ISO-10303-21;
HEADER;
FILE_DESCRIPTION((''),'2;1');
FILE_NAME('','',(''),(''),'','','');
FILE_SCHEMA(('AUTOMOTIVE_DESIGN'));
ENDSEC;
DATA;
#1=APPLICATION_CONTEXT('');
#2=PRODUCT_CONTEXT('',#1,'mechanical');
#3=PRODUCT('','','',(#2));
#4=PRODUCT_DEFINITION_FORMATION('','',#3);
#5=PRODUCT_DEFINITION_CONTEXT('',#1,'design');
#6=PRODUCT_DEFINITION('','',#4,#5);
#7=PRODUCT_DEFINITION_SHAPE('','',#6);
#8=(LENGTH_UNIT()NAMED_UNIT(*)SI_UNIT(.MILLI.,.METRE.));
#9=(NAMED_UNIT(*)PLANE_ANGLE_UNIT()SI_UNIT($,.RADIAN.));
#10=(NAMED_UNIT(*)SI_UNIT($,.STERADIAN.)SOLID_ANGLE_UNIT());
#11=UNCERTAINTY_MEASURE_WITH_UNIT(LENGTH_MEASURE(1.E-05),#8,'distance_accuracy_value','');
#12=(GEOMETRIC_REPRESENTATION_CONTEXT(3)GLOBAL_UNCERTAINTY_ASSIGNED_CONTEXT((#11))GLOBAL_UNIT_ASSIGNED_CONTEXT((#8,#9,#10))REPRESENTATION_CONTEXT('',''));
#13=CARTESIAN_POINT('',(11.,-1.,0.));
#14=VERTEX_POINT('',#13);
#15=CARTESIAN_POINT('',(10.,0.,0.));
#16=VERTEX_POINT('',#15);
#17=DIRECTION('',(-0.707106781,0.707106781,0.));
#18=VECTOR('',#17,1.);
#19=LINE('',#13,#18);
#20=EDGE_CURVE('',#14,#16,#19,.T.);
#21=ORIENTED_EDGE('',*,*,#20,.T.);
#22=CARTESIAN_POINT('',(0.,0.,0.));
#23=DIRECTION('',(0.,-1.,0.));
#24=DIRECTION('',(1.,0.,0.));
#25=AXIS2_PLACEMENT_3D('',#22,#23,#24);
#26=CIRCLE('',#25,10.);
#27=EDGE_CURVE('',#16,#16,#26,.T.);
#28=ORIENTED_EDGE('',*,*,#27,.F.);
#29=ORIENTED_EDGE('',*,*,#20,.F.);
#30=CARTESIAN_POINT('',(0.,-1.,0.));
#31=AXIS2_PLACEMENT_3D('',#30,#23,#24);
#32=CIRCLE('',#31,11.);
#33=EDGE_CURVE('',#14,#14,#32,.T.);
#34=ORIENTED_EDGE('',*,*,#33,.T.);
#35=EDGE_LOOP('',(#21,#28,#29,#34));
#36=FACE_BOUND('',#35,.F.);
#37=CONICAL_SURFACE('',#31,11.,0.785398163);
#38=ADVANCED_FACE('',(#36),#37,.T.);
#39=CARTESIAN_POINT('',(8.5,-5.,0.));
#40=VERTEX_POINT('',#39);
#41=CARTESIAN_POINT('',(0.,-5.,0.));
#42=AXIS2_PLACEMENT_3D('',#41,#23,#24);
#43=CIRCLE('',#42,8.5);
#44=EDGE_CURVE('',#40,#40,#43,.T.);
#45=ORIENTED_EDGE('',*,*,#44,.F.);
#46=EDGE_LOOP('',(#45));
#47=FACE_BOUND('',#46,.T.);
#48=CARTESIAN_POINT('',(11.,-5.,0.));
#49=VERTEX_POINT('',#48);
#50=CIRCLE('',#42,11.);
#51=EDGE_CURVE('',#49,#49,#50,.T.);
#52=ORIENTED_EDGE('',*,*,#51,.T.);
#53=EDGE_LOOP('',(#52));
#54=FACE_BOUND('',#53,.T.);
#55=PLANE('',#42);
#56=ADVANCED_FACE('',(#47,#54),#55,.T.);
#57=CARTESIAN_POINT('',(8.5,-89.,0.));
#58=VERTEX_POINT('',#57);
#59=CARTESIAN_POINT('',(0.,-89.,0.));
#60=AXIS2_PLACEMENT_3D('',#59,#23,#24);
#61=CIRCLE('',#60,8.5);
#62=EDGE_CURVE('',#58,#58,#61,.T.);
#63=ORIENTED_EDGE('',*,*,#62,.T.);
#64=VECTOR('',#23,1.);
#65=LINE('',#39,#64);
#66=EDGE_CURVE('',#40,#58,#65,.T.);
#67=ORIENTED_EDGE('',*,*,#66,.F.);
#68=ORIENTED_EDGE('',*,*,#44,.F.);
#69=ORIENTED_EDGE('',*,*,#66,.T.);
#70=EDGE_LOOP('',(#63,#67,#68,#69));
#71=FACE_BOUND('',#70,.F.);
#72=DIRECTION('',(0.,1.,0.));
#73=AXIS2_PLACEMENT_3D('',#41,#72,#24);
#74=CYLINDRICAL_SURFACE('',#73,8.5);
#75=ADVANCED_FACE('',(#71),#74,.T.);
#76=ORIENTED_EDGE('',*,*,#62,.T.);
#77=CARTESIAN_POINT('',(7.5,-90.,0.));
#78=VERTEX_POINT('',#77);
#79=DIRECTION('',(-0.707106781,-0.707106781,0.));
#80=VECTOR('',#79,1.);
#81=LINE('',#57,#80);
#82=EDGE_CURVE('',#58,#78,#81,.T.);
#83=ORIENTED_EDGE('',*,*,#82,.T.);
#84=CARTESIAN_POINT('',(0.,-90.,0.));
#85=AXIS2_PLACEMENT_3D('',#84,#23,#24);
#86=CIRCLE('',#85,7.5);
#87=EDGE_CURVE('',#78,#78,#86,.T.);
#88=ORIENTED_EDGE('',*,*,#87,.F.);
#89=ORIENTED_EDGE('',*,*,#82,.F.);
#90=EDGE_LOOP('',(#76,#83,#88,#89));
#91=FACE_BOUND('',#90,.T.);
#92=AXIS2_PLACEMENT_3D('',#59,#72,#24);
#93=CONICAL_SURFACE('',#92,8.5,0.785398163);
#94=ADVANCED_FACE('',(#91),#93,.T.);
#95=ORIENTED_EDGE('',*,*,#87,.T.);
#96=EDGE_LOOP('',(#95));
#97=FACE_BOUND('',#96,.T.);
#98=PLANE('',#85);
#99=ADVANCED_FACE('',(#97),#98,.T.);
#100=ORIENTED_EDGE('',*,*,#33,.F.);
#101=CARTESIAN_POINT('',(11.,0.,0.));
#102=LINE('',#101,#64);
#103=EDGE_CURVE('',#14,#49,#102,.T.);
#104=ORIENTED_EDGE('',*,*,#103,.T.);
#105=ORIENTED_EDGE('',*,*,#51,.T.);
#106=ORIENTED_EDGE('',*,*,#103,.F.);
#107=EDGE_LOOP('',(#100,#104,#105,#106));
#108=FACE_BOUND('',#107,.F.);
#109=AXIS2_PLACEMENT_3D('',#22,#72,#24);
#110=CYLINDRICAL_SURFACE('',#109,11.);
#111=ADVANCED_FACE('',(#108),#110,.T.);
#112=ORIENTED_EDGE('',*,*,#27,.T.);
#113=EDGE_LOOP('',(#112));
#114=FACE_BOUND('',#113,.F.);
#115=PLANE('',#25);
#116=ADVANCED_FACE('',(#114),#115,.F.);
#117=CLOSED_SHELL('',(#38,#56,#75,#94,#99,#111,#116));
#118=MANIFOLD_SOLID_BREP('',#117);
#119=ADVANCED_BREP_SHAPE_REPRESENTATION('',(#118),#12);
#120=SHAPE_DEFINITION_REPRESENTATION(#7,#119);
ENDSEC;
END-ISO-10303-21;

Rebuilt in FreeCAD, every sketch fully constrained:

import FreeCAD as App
import Part
import Sketcher
from FreeCAD import Vector


def edges_at(feature, points):
    """Names of the edges that pass closest to the given points."""
    edges = feature.Shape.Edges
    near = lambda p: min(range(len(edges)), key=lambda i: edges[i].distToShape(Part.Vertex(*p))[0])
    return sorted({f"Edge{near(p) + 1}" for p in points})

doc = App.newDocument("Part")
body = doc.addObject("PartDesign::Body", "Body")

sketch1 = doc.addObject("Sketcher::SketchObject", "Sketch")
body.addObject(sketch1)
sketch1.AttachmentSupport = (doc.XZ_Plane, [""])
sketch1.MapMode = "FlatFace"
sketch1.addGeometry(Part.Circle(Vector(0, 0, 0), Vector(0, 0, 1), 11), False)
sketch1.addConstraint(Sketcher.Constraint("Coincident", 0, 3, -1, 1))
sketch1.addConstraint(Sketcher.Constraint("Diameter", 0, 22.0))
pad1 = doc.addObject("PartDesign::Pad", "Pad")
body.addObject(pad1)
pad1.Profile = sketch1
pad1.Length = 5

sketch2 = doc.addObject("Sketcher::SketchObject", "Sketch001")
body.addObject(sketch2)
sketch2.AttachmentSupport = (doc.XZ_Plane, [""])
sketch2.MapMode = "FlatFace"
sketch2.AttachmentOffset = App.Placement(Vector(0, 0, 5), App.Rotation())
sketch2.addGeometry(Part.Circle(Vector(0, 0, 0), Vector(0, 0, 1), 8), False)
sketch2.addConstraint(Sketcher.Constraint("Coincident", 0, 3, -1, 1))
sketch2.addConstraint(Sketcher.Constraint("Diameter", 0, 17.0))
pad2 = doc.addObject("PartDesign::Pad", "Pad001")
body.addObject(pad2)
pad2.Profile = sketch2
pad2.Length = 85
doc.recompute()

chamfer = doc.addObject("PartDesign::Chamfer", "Chamfer")
body.addObject(chamfer)
chamfer.Base = (pad2, edges_at(pad2, [(-11, 0, 0)]))
chamfer.Size = 1
doc.recompute()

chamfer2 = doc.addObject("PartDesign::Chamfer", "Chamfer001")
body.addObject(chamfer2)
chamfer2.Base = (chamfer, edges_at(chamfer, [(-8.5, -90, 0)]))
chamfer2.Size = 1

doc.recompute()
